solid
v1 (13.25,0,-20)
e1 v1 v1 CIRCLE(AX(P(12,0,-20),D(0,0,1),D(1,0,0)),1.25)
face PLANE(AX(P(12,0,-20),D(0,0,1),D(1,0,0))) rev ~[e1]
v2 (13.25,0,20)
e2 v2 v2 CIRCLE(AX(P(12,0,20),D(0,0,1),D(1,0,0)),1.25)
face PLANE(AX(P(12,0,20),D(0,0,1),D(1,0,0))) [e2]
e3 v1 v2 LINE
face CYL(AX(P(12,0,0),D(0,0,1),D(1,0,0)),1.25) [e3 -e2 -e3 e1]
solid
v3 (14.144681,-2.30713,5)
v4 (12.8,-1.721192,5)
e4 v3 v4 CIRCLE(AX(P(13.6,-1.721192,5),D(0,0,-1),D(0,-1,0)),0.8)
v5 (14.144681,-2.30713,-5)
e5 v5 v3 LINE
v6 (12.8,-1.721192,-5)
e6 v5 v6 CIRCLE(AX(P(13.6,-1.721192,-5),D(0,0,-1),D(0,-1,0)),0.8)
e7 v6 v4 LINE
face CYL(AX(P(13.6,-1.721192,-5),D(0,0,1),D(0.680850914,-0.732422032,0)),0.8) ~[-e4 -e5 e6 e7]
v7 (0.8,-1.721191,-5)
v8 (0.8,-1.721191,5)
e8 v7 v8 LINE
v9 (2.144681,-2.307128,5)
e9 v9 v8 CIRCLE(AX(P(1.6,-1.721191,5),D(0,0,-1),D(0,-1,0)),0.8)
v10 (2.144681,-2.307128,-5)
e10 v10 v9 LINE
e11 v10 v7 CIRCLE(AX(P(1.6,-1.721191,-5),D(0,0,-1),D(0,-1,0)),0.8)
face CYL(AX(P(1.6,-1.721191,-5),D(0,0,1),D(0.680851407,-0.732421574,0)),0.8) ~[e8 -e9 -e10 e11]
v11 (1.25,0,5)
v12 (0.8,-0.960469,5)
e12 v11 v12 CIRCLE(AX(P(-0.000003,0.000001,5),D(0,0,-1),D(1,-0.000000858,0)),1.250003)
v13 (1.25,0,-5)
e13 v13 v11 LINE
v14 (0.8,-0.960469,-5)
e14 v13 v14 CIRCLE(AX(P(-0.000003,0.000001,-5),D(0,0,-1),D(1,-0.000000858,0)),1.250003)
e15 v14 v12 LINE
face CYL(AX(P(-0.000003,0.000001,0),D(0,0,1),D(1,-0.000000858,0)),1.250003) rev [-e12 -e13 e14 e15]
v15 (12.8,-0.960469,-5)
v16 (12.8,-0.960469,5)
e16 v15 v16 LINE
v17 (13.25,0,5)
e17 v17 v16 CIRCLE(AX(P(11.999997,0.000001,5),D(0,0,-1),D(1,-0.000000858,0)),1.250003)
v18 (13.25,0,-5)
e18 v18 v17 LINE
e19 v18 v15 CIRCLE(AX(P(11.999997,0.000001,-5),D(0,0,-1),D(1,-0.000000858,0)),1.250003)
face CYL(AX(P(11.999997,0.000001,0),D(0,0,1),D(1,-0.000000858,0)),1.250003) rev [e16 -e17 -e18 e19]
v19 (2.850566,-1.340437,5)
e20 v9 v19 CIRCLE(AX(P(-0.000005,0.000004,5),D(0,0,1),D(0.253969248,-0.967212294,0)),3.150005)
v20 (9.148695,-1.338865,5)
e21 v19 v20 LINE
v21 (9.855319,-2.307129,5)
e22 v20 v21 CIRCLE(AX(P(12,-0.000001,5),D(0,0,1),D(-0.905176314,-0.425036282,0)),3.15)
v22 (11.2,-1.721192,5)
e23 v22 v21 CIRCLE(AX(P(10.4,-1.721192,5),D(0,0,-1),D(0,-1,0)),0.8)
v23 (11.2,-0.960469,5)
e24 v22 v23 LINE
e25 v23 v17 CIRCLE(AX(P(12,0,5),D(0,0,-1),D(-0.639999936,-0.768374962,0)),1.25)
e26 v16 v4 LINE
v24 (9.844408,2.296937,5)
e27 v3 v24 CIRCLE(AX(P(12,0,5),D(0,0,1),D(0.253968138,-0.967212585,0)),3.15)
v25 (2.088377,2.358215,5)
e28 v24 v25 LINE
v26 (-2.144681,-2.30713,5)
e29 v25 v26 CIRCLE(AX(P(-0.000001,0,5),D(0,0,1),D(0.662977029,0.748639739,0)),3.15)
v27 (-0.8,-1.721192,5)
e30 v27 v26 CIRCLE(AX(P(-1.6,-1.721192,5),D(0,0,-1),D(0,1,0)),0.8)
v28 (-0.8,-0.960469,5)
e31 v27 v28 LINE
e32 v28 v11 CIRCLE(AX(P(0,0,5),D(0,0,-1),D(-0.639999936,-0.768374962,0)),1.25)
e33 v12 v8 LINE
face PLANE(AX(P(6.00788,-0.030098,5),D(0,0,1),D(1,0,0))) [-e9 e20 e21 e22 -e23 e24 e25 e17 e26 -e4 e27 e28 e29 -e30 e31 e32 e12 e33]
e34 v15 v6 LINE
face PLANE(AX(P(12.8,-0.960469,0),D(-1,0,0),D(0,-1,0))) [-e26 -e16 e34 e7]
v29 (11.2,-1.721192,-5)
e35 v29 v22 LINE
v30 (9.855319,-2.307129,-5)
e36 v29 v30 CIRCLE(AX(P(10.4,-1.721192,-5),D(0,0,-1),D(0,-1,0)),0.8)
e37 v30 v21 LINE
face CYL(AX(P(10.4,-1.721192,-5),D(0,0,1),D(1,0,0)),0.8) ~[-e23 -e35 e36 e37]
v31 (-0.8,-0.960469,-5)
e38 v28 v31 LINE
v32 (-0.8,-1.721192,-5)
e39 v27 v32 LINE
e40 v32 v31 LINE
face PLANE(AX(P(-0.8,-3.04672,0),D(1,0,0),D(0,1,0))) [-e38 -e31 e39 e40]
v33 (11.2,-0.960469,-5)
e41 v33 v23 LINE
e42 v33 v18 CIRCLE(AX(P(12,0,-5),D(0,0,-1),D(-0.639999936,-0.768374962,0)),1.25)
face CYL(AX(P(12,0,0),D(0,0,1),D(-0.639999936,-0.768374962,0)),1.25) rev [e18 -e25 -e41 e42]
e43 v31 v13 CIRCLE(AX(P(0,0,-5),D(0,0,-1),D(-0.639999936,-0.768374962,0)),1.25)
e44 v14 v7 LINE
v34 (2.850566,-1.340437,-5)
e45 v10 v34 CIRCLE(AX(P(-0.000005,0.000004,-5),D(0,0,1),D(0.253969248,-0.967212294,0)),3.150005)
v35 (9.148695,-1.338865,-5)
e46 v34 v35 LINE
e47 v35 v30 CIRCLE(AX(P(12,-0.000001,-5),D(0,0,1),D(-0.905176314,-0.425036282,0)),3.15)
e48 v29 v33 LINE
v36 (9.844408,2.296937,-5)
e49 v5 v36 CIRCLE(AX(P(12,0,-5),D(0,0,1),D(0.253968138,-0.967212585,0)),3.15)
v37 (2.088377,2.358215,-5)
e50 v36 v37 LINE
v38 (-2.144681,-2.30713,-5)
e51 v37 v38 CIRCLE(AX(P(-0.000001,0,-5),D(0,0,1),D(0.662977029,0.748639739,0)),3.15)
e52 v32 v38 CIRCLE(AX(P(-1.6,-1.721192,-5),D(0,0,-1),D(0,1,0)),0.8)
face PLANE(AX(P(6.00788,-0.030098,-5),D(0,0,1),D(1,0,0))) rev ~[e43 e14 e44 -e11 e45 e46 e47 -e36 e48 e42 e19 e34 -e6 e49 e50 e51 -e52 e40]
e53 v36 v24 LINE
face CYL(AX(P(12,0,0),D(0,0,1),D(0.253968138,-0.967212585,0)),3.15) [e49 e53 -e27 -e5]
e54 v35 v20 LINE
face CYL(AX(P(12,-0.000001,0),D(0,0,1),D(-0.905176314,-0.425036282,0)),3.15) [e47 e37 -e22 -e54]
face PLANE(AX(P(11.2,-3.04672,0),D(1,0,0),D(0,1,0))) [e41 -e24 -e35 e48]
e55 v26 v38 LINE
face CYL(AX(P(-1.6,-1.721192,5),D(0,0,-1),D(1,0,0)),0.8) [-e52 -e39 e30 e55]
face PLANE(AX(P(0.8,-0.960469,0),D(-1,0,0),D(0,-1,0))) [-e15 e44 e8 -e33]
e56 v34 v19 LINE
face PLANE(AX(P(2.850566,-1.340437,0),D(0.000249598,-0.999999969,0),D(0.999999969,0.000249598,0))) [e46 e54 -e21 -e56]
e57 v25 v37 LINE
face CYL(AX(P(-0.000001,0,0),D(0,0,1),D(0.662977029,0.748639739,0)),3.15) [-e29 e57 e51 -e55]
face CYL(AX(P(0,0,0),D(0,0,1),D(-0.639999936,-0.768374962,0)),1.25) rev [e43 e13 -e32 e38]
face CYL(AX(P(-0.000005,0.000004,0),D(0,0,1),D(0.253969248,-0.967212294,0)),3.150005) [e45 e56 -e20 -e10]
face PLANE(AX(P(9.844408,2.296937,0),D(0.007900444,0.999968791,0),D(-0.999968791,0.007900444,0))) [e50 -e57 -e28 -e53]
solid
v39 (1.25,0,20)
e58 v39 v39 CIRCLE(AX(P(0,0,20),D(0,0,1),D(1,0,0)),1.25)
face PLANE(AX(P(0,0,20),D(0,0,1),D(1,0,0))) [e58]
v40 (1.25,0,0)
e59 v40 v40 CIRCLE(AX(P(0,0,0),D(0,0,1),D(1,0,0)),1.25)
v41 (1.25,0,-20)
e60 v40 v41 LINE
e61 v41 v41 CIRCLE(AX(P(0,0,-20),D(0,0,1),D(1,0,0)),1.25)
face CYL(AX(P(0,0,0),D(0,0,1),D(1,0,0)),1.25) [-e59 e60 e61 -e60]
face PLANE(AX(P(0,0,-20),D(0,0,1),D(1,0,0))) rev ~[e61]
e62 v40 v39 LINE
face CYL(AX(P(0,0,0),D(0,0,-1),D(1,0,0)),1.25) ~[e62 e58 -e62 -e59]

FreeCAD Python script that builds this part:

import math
import FreeCAD as App
import Part
import Sketcher
from FreeCAD import Vector
Q = App.Units.Quantity


def edges_at(feature, points):
    """Names of the edges that pass closest to the given points."""
    edges = feature.Shape.Edges
    near = lambda p: min(range(len(edges)), key=lambda i: edges[i].distToShape(Part.Vertex(*p))[0])
    return sorted({f"Edge{near(p) + 1}" for p in points})

doc = App.newDocument("Part")
body = doc.addObject("PartDesign::Body", "Body")
body.AllowCompound = True

# Sketch on XY plane
sketch1 = body.newObject("Sketcher::SketchObject", "Sketch")
sketch1.AttachmentSupport = (doc.getObject("XY_Plane"), [""])
sketch1.MapMode = "FlatFace"
sketch1.addGeometry([
    Part.Circle(Vector(0, 0, 0), Vector(0, 0, 1), 1.25),
    Part.Circle(Vector(12, 0, 0), Vector(0, 0, 1), 1.25),
], False)
sketch1.addConstraint([
    Sketcher.Constraint("Coincident", 0, 3, -1, 1),
    Sketcher.Constraint("Equal", 0, 1),
    Sketcher.Constraint("PointOnObject", 1, 3, -1),
    Sketcher.Constraint("Diameter", 0, Q("2.5 mm")),
    Sketcher.Constraint("DistanceX", -1, 1, 1, 3, Q("12 mm")),
])
pad1 = body.newObject("PartDesign::Pad", "Pad")
pad1.Profile = sketch1
pad1.Length = 40
pad1.Midplane = True
body2 = doc.addObject("PartDesign::Body", "Body001")

# Sketch on XY plane
sketch2 = body2.newObject("Sketcher::SketchObject", "Sketch001")
sketch2.AttachmentSupport = (doc.getObject("XY_Plane001"), [""])
sketch2.MapMode = "FlatFace"
sketch2.addGeometry([
    Part.ArcOfCircle(Part.Circle(Vector(0, 0, 0), Vector(0, 0, 1), 1.25), math.radians(0.000012), math.radians(230.208185)),  # 0
    Part.ArcOfCircle(Part.Circle(Vector(-0.000003, 0.000001, 0), Vector(0, 0, 1), 1.250003), math.radians(-50.208115), math.radians(-0.000049)),  # 1
    Part.LineSegment(Vector(0.8, -0.960469, 0), Vector(0.8, -3.04672, 0)),  # 2
    Part.ArcOfCircle(Part.Circle(Vector(-0.000005, 0.000004, 0), Vector(0, 0, 1), 3.150005), math.radians(-75.287483), math.radians(-25.184601)),  # 3
    Part.LineSegment(Vector(2.850566, -1.340437, 0), Vector(9.148695, -1.338865, 0)),  # 4
    Part.ArcOfCircle(Part.Circle(Vector(12, -0.000001, 0), Vector(0, 0, 1), 3.15), math.radians(-154.84704), math.radians(-104.71246)),  # 5
    Part.LineSegment(Vector(11.2, -3.04672, 0), Vector(11.2, -0.960469, 0)),  # 6
    Part.ArcOfCircle(Part.Circle(Vector(12, 0, 0), Vector(0, 0, 1), 1.25), math.radians(0.000012), math.radians(230.208185)),  # 7
    Part.ArcOfCircle(Part.Circle(Vector(11.999997, 0.000001, 0), Vector(0, 0, 1), 1.250003), math.radians(-50.208115), math.radians(-0.000049)),  # 8
    Part.LineSegment(Vector(12.8, -0.960469, 0), Vector(12.8, -3.04672, 0)),  # 9
    Part.ArcOfCircle(Part.Circle(Vector(12, 0, 0), Vector(0, 0, 1), 3.15), math.radians(-75.287549), math.radians(133.181763)),  # 10
    Part.LineSegment(Vector(9.844408, 2.296937, 0), Vector(2.088377, 2.358215, 0)),  # 11
    Part.ArcOfCircle(Part.Circle(Vector(-0.000001, 0, 0), Vector(0, 0, 1), 3.15), math.radians(48.472685), math.radians(255.287555)),  # 12
    Part.LineSegment(Vector(-0.8, -3.04672, 0), Vector(-0.8, -0.960469, 0)),  # 13
], False)
sketch2.addConstraint([
    Sketcher.Constraint("Tangent", 0, 1, 1, 2),
    Sketcher.Constraint("Coincident", 1, 1, 2, 1),
    Sketcher.Constraint("Coincident", 2, 2, 3, 1),
    Sketcher.Constraint("Coincident", 3, 2, 4, 1),
    Sketcher.Constraint("Coincident", 4, 2, 5, 1),
    Sketcher.Constraint("Coincident", 5, 2, 6, 1),
    Sketcher.Constraint("Coincident", 6, 2, 7, 2),
    Sketcher.Constraint("Tangent", 7, 1, 8, 2),
    Sketcher.Constraint("Coincident", 8, 1, 9, 1),
    Sketcher.Constraint("Coincident", 9, 2, 10, 1),
    Sketcher.Constraint("Coincident", 10, 2, 11, 1),
    Sketcher.Constraint("Coincident", 11, 2, 12, 1),
    Sketcher.Constraint("Coincident", 12, 2, 13, 1),
    Sketcher.Constraint("Coincident", 13, 2, 0, 2),
    Sketcher.Constraint("Vertical", 2),
    Sketcher.Constraint("Vertical", 6),
    Sketcher.Constraint("Vertical", 9),
    Sketcher.Constraint("Vertical", 13),
    Sketcher.Constraint("Coincident", 0, 3, -1, 1),
    Sketcher.Constraint("Coincident", 3, 3, -1, 1),
    Sketcher.Constraint("Coincident", 12, 3, -1, 1),
    Sketcher.Constraint("Coincident", 7, 3, 5, 3),
    Sketcher.Constraint("Coincident", 10, 3, 5, 3),
    Sketcher.Constraint("Equal", 0, 7),
    Sketcher.Constraint("Equal", 1, 8),
    Sketcher.Constraint("Equal", 5, 10),
    Sketcher.Constraint("Equal", 10, 12),
    Sketcher.Constraint("Symmetric", 2, 2, 12, 2, -2),
    Sketcher.Constraint("PointOnObject", 5, 3, -1),
    Sketcher.Constraint("PointOnObject", 0, 1, -1),
    Sketcher.Constraint("PointOnObject", 7, 1, -1),
    Sketcher.Constraint("Horizontal", 2, 2, 5, 2),
    Sketcher.Constraint("Horizontal", 1, 1, 6, 2),
    Sketcher.Constraint("Horizontal", 6, 2, 8, 1),
    Sketcher.Constraint("Radius", 0, Q("1.25 mm")),
    Sketcher.Constraint("Radius", 5, Q("3.15 mm")),
    Sketcher.Constraint("DistanceX", -1, 1, 5, 3, Q("12 mm")),
    Sketcher.Constraint("DistanceX", -1, 1, 1, 1, Q("0.8 mm")),
    Sketcher.Constraint("DistanceX", 4, 2, 8, 3, Q("2.851302 mm")),
    Sketcher.Constraint("Distance", 4, Q("6.298129 mm")),
    Sketcher.Constraint("DistanceX", 10, 2, 8, 3, Q("2.155589 mm")),
    Sketcher.Constraint("DistanceX", 3, 3, 11, 2, Q("2.088382 mm")),
])
pad2 = body2.newObject("PartDesign::Pad", "Pad001")
pad2.Profile = sketch2
pad2.Length = 10
pad2.Midplane = True
doc.recompute()

fillet = body2.newObject("PartDesign::Fillet", "Fillet")
fillet.Base = (pad2, edges_at(pad2, [
    (-0.8, -3.047, 0),
    (0.8, -3.047, 0),
    (11.2, -3.047, 0),
    (12.8, -3.047, 0),
]))
fillet.Radius = 0.8

doc.recompute()
